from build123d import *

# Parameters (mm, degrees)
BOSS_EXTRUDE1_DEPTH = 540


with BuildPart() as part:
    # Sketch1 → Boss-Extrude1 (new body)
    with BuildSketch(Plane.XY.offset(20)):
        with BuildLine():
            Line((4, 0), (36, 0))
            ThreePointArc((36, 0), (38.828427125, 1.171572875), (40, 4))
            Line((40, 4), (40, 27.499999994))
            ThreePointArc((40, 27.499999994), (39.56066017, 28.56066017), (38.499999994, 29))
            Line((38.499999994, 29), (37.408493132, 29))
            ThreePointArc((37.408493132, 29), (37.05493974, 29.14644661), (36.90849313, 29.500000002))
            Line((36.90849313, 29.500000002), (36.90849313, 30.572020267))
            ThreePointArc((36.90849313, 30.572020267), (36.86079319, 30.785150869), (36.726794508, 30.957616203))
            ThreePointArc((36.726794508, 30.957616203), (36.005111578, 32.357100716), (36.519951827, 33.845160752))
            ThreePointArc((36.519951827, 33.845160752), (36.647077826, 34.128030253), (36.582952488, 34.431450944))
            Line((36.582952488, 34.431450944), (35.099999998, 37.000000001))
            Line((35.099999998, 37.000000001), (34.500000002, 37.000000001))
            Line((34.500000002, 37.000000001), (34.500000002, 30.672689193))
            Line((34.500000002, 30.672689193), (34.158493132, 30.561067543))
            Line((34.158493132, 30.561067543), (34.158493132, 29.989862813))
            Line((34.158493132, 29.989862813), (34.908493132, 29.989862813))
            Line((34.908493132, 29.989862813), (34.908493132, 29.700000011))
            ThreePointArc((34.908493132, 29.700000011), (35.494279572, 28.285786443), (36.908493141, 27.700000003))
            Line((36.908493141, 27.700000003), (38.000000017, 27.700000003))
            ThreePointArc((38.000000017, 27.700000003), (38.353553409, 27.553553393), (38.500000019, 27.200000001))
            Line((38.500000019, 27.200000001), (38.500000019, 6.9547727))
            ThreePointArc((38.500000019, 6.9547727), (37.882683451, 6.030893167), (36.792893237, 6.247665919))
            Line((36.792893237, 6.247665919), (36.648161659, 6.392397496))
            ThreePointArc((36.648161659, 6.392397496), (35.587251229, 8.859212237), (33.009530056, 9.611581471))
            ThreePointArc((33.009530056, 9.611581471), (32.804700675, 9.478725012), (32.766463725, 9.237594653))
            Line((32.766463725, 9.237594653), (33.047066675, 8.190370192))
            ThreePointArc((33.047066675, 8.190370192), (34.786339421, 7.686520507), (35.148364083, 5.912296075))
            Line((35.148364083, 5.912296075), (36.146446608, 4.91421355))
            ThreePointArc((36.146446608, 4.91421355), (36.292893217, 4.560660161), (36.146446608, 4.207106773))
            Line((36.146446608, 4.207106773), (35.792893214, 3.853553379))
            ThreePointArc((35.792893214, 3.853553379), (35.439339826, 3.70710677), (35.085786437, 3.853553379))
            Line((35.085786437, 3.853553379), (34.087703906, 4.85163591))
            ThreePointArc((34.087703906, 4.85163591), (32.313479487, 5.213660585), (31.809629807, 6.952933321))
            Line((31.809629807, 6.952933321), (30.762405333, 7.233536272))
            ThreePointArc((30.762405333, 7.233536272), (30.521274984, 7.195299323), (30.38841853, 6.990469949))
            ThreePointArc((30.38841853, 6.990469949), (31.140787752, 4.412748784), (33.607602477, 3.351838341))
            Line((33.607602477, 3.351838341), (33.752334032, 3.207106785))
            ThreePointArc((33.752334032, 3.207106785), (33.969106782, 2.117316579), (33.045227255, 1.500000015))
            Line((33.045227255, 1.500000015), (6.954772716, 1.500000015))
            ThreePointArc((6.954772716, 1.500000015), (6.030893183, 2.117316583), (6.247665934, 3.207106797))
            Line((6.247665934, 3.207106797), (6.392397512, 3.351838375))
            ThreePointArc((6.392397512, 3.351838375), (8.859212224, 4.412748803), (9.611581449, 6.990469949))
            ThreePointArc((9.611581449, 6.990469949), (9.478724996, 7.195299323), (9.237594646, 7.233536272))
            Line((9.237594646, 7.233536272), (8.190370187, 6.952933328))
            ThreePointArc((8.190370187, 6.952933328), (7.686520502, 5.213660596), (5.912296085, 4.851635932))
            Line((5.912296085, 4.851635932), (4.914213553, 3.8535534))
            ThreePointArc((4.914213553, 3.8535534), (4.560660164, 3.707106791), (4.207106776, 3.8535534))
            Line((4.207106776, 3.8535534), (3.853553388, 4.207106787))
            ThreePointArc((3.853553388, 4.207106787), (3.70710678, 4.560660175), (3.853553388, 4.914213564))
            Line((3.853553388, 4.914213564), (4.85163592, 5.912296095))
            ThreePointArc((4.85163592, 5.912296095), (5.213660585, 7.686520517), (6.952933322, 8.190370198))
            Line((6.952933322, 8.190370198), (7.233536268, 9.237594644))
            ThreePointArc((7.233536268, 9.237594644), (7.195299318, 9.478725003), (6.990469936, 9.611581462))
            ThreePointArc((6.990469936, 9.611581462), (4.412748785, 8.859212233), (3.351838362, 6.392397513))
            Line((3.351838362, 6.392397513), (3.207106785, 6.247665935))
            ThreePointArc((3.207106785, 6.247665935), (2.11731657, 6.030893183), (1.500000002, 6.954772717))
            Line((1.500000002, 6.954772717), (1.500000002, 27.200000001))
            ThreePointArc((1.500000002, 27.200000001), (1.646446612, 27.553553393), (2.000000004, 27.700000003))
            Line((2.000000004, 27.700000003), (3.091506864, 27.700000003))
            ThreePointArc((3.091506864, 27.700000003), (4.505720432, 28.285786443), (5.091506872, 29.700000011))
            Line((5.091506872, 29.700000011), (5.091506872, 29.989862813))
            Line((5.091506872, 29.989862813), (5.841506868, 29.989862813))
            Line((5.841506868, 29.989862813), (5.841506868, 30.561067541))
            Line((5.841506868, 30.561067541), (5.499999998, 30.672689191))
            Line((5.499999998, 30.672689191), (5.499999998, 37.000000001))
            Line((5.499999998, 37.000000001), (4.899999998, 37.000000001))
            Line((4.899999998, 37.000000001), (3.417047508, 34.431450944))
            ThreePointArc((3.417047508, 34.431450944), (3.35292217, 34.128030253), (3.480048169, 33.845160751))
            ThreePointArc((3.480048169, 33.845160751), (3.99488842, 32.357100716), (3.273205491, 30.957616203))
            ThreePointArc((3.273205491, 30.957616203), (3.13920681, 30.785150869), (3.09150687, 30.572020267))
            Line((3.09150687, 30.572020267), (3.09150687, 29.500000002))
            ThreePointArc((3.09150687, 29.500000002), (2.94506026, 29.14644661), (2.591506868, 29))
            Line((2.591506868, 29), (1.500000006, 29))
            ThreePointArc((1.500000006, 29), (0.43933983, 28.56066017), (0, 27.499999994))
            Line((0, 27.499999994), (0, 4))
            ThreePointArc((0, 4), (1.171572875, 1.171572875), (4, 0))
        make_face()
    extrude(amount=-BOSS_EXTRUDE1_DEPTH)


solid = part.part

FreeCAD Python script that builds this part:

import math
import FreeCAD as App
import Part
import Sketcher
Q = App.Units.Quantity

doc = App.newDocument("Part")
body = doc.addObject("PartDesign::Body", "Body")

# Sketch on XY plane
sketch1 = body.newObject("Sketcher::SketchObject", "Sketch")
sketch1.AttachmentSupport = (doc.getObject("XY_Plane"), [""])
sketch1.MapMode = "FlatFace"
sketch1.AttachmentOffset = App.Placement(App.Vector(0, 0, 20), App.Rotation())
sketch1.addGeometry(Part.LineSegment(App.Vector(4, 0, 0), App.Vector(36, 0, 0)), False)
sketch1.addGeometry(Part.ArcOfCircle(Part.Circle(App.Vector(36, 4, 0), App.Vector(0, 0, 1), 4), math.radians(-90), math.radians(0)), False)
sketch1.addGeometry(Part.LineSegment(App.Vector(40, 4, 0), App.Vector(40, 27.5, 0)), False)
sketch1.addGeometry(Part.ArcOfCircle(Part.Circle(App.Vector(38.5, 27.5, 0), App.Vector(0, 0, 1), 1.5), math.radians(0), math.radians(90)), False)
sketch1.addGeometry(Part.LineSegment(App.Vector(38.5, 29, 0), App.Vector(37.41, 29, 0)), False)
sketch1.addGeometry(Part.ArcOfCircle(Part.Circle(App.Vector(37.41, 29.5, 0), App.Vector(0, 0, 1), 0.5), math.radians(180), math.radians(270)), False)
sketch1.addGeometry(Part.LineSegment(App.Vector(36.91, 29.5, 0), App.Vector(36.91, 30.57, 0)), False)
sketch1.addGeometry(Part.ArcOfCircle(Part.Circle(App.Vector(36.41, 30.57, 0), App.Vector(0, 0, 1), 0.5), math.radians(0), math.radians(50)), False)
sketch1.addGeometry(Part.ArcOfCircle(Part.Circle(App.Vector(38, 32.5, 0), App.Vector(0, 0, 1), 2), math.radians(138), math.radians(230)), False)
sketch1.addGeometry(Part.ArcOfCircle(Part.Circle(App.Vector(36.15, 34.18, 0), App.Vector(0, 0, 1), 0.5), math.radians(-42), math.radians(30)), False)
sketch1.addGeometry(Part.LineSegment(App.Vector(36.58, 34.43, 0), App.Vector(35.1, 37, 0)), False)
sketch1.addGeometry(Part.LineSegment(App.Vector(35.1, 37, 0), App.Vector(34.5, 37, 0)), False)
sketch1.addGeometry(Part.LineSegment(App.Vector(34.5, 37, 0), App.Vector(34.5, 30.67, 0)), False)
sketch1.addGeometry(Part.LineSegment(App.Vector(34.5, 30.67, 0), App.Vector(34.16, 30.56, 0)), False)
sketch1.addGeometry(Part.LineSegment(App.Vector(34.16, 30.56, 0), App.Vector(34.16, 29.99, 0)), False)
sketch1.addGeometry(Part.LineSegment(App.Vector(34.16, 29.99, 0), App.Vector(34.91, 29.99, 0)), False)
sketch1.addGeometry(Part.LineSegment(App.Vector(34.91, 29.99, 0), App.Vector(34.91, 29.7, 0)), False)
sketch1.addGeometry(Part.ArcOfCircle(Part.Circle(App.Vector(36.91, 29.7, 0), App.Vector(0, 0, 1), 2), math.radians(180), math.radians(270)), False)
sketch1.addGeometry(Part.LineSegment(App.Vector(36.91, 27.7, 0), App.Vector(38, 27.7, 0)), False)
sketch1.addGeometry(Part.ArcOfCircle(Part.Circle(App.Vector(38, 27.2, 0), App.Vector(0, 0, 1), 0.5), math.radians(0), math.radians(90)), False)
sketch1.addGeometry(Part.LineSegment(App.Vector(38.5, 27.2, 0), App.Vector(38.5, 6.95, 0)), False)
sketch1.addGeometry(Part.ArcOfCircle(Part.Circle(App.Vector(37.5, 6.95, 0), App.Vector(0, 0, 1), 1), math.radians(-135), math.radians(0)), False)
sketch1.addGeometry(Part.LineSegment(App.Vector(36.79, 6.25, 0), App.Vector(36.65, 6.39, 0)), False)
sketch1.addGeometry(Part.ArcOfCircle(Part.Circle(App.Vector(33.5, 6.5, 0), App.Vector(0, 0, 1), 3.15), math.radians(-2), math.radians(99)), False)
sketch1.addGeometry(Part.ArcOfCircle(Part.Circle(App.Vector(33.06, 9.32, 0), App.Vector(0, 0, 1), 0.3), math.radians(99), math.radians(195)), False)
sketch1.addGeometry(Part.LineSegment(App.Vector(32.77, 9.24, 0), App.Vector(33.05, 8.19, 0)), False)
sketch1.addGeometry(Part.ArcOfCircle(Part.Circle(App.Vector(33.5, 6.5, 0), App.Vector(0, 0, 1), 1.75), math.radians(-20), math.radians(105)), False)
sketch1.addGeometry(Part.LineSegment(App.Vector(35.15, 5.91, 0), App.Vector(36.15, 4.91, 0)), False)
sketch1.addGeometry(Part.ArcOfCircle(Part.Circle(App.Vector(35.79, 4.56, 0), App.Vector(0, 0, 1), 0.5), math.radians(-45), math.radians(45)), False)
sketch1.addGeometry(Part.LineSegment(App.Vector(36.15, 4.21, 0), App.Vector(35.79, 3.85, 0)), False)
sketch1.addGeometry(Part.ArcOfCircle(Part.Circle(App.Vector(35.44, 4.21, 0), App.Vector(0, 0, 1), 0.5), math.radians(-135), math.radians(-45)), False)
sketch1.addGeometry(Part.LineSegment(App.Vector(35.09, 3.85, 0), App.Vector(34.09, 4.85, 0)), False)
sketch1.addGeometry(Part.ArcOfCircle(Part.Circle(App.Vector(33.5, 6.5, 0), App.Vector(0, 0, 1), 1.75), math.radians(165), math.radians(290)), False)
sketch1.addGeometry(Part.LineSegment(App.Vector(31.81, 6.95, 0), App.Vector(30.76, 7.23, 0)), False)
sketch1.addGeometry(Part.ArcOfCircle(Part.Circle(App.Vector(30.68, 6.94, 0), App.Vector(0, 0, 1), 0.3), math.radians(75), math.radians(171)), False)
sketch1.addGeometry(Part.ArcOfCircle(Part.Circle(App.Vector(33.5, 6.5, 0), App.Vector(0, 0, 1), 3.15), math.radians(171), math.radians(272)), False)
sketch1.addGeometry(Part.LineSegment(App.Vector(33.61, 3.35, 0), App.Vector(33.75, 3.21, 0)), False)
sketch1.addGeometry(Part.ArcOfCircle(Part.Circle(App.Vector(33.05, 2.5, 0), App.Vector(0, 0, 1), 1), math.radians(-90), math.radians(45)), False)
sketch1.addGeometry(Part.LineSegment(App.Vector(33.05, 1.5, 0), App.Vector(6.95, 1.5, 0)), False)
sketch1.addGeometry(Part.ArcOfCircle(Part.Circle(App.Vector(6.95, 2.5, 0), App.Vector(0, 0, 1), 1), math.radians(135), math.radians(270)), False)
sketch1.addGeometry(Part.LineSegment(App.Vector(6.25, 3.21, 0), App.Vector(6.39, 3.35, 0)), False)
sketch1.addGeometry(Part.ArcOfCircle(Part.Circle(App.Vector(6.5, 6.5, 0), App.Vector(0, 0, 1), 3.15), math.radians(-92), math.radians(9)), False)
sketch1.addGeometry(Part.ArcOfCircle(Part.Circle(App.Vector(9.32, 6.94, 0), App.Vector(0, 0, 1), 0.3), math.radians(9), math.radians(105)), False)
sketch1.addGeometry(Part.LineSegment(App.Vector(9.24, 7.23, 0), App.Vector(8.19, 6.95, 0)), False)
sketch1.addGeometry(Part.ArcOfCircle(Part.Circle(App.Vector(6.5, 6.5, 0), App.Vector(0, 0, 1), 1.75), math.radians(-110), math.radians(15)), False)
sketch1.addGeometry(Part.LineSegment(App.Vector(5.91, 4.85, 0), App.Vector(4.91, 3.85, 0)), False)
sketch1.addGeometry(Part.ArcOfCircle(Part.Circle(App.Vector(4.56, 4.21, 0), App.Vector(0, 0, 1), 0.5), math.radians(-135), math.radians(-45)), False)
sketch1.addGeometry(Part.LineSegment(App.Vector(4.21, 3.85, 0), App.Vector(3.85, 4.21, 0)), False)
sketch1.addGeometry(Part.ArcOfCircle(Part.Circle(App.Vector(4.21, 4.56, 0), App.Vector(0, 0, 1), 0.5), math.radians(135), math.radians(225)), False)
sketch1.addGeometry(Part.LineSegment(App.Vector(3.85, 4.91, 0), App.Vector(4.85, 5.91, 0)), False)
sketch1.addGeometry(Part.ArcOfCircle(Part.Circle(App.Vector(6.5, 6.5, 0), App.Vector(0, 0, 1), 1.75), math.radians(75), math.radians(200)), False)
sketch1.addGeometry(Part.LineSegment(App.Vector(6.95, 8.19, 0), App.Vector(7.23, 9.24, 0)), False)
sketch1.addGeometry(Part.ArcOfCircle(Part.Circle(App.Vector(6.94, 9.32, 0), App.Vector(0, 0, 1), 0.3), math.radians(-15), math.radians(81)), False)
sketch1.addGeometry(Part.ArcOfCircle(Part.Circle(App.Vector(6.5, 6.5, 0), App.Vector(0, 0, 1), 3.15), math.radians(81), math.radians(182)), False)
sketch1.addGeometry(Part.LineSegment(App.Vector(3.35, 6.39, 0), App.Vector(3.21, 6.25, 0)), False)
sketch1.addGeometry(Part.ArcOfCircle(Part.Circle(App.Vector(2.5, 6.95, 0), App.Vector(0, 0, 1), 1), math.radians(180), math.radians(315)), False)
sketch1.addGeometry(Part.LineSegment(App.Vector(1.5, 6.95, 0), App.Vector(1.5, 27.2, 0)), False)
sketch1.addGeometry(Part.ArcOfCircle(Part.Circle(App.Vector(2, 27.2, 0), App.Vector(0, 0, 1), 0.5), math.radians(90), math.radians(180)), False)
sketch1.addGeometry(Part.LineSegment(App.Vector(2, 27.7, 0), App.Vector(3.09, 27.7, 0)), False)
sketch1.addGeometry(Part.ArcOfCircle(Part.Circle(App.Vector(3.09, 29.7, 0), App.Vector(0, 0, 1), 2), math.radians(-90), math.radians(0)), False)
sketch1.addGeometry(Part.LineSegment(App.Vector(5.09, 29.7, 0), App.Vector(5.09, 29.99, 0)), False)
sketch1.addGeometry(Part.LineSegment(App.Vector(5.09, 29.99, 0), App.Vector(5.84, 29.99, 0)), False)
sketch1.addGeometry(Part.LineSegment(App.Vector(5.84, 29.99, 0), App.Vector(5.84, 30.56, 0)), False)
sketch1.addGeometry(Part.LineSegment(App.Vector(5.84, 30.56, 0), App.Vector(5.5, 30.67, 0)), False)
sketch1.addGeometry(Part.LineSegment(App.Vector(5.5, 30.67, 0), App.Vector(5.5, 37, 0)), False)
sketch1.addGeometry(Part.LineSegment(App.Vector(5.5, 37, 0), App.Vector(4.9, 37, 0)), False)
sketch1.addGeometry(Part.LineSegment(App.Vector(4.9, 37, 0), App.Vector(3.42, 34.43, 0)), False)
sketch1.addGeometry(Part.ArcOfCircle(Part.Circle(App.Vector(3.85, 34.18, 0), App.Vector(0, 0, 1), 0.5), math.radians(150), math.radians(222)), False)
sketch1.addGeometry(Part.ArcOfCircle(Part.Circle(App.Vector(2, 32.5, 0), App.Vector(0, 0, 1), 2), math.radians(-50), math.radians(42)), False)
sketch1.addGeometry(Part.ArcOfCircle(Part.Circle(App.Vector(3.59, 30.57, 0), App.Vector(0, 0, 1), 0.5), math.radians(130), math.radians(180)), False)
sketch1.addGeometry(Part.LineSegment(App.Vector(3.09, 30.57, 0), App.Vector(3.09, 29.5, 0)), False)
sketch1.addGeometry(Part.ArcOfCircle(Part.Circle(App.Vector(2.59, 29.5, 0), App.Vector(0, 0, 1), 0.5), math.radians(-90), math.radians(0)), False)
sketch1.addGeometry(Part.LineSegment(App.Vector(2.59, 29, 0), App.Vector(1.5, 29, 0)), False)
sketch1.addGeometry(Part.ArcOfCircle(Part.Circle(App.Vector(1.5, 27.5, 0), App.Vector(0, 0, 1), 1.5), math.radians(90), math.radians(180)), False)
sketch1.addGeometry(Part.LineSegment(App.Vector(0, 27.5, 0), App.Vector(0, 4, 0)), False)
sketch1.addGeometry(Part.ArcOfCircle(Part.Circle(App.Vector(4, 4, 0), App.Vector(0, 0, 1), 4), math.radians(180), math.radians(270)), False)
sketch1.addConstraint(Sketcher.Constraint("Tangent", 0, 2, 1, 1))
sketch1.addConstraint(Sketcher.Constraint("Tangent", 1, 2, 2, 1))
sketch1.addConstraint(Sketcher.Constraint("Tangent", 2, 2, 3, 1))
sketch1.addConstraint(Sketcher.Constraint("Tangent", 3, 2, 4, 1))
sketch1.addConstraint(Sketcher.Constraint("Tangent", 4, 2, 5, 2))
sketch1.addConstraint(Sketcher.Constraint("Tangent", 5, 1, 6, 1))
sketch1.addConstraint(Sketcher.Constraint("Tangent", 6, 2, 7, 1))
sketch1.addConstraint(Sketcher.Constraint("Tangent", 7, 2, 8, 2))
sketch1.addConstraint(Sketcher.Constraint("Tangent", 8, 1, 9, 1))
sketch1.addConstraint(Sketcher.Constraint("Tangent", 9, 2, 10, 1))
sketch1.addConstraint(Sketcher.Constraint("Coincident", 10, 2, 11, 1))
sketch1.addConstraint(Sketcher.Constraint("Coincident", 11, 2, 12, 1))
sketch1.addConstraint(Sketcher.Constraint("Coincident", 12, 2, 13, 1))
sketch1.addConstraint(Sketcher.Constraint("Coincident", 13, 2, 14, 1))
sketch1.addConstraint(Sketcher.Constraint("Coincident", 14, 2, 15, 1))
sketch1.addConstraint(Sketcher.Constraint("Coincident", 15, 2, 16, 1))
sketch1.addConstraint(Sketcher.Constraint("Tangent", 16, 2, 17, 1))
sketch1.addConstraint(Sketcher.Constraint("Tangent", 17, 2, 18, 1))
sketch1.addConstraint(Sketcher.Constraint("Tangent", 18, 2, 19, 2))
sketch1.addConstraint(Sketcher.Constraint("Tangent", 19, 1, 20, 1))
sketch1.addConstraint(Sketcher.Constraint("Tangent", 20, 2, 21, 2))
sketch1.addConstraint(Sketcher.Constraint("Tangent", 21, 1, 22, 1))
sketch1.addConstraint(Sketcher.Constraint("Coincident", 22, 2, 23, 1))
sketch1.addConstraint(Sketcher.Constraint("Tangent", 23, 2, 24, 1))
sketch1.addConstraint(Sketcher.Constraint("Tangent", 24, 2, 25, 1))
sketch1.addConstraint(Sketcher.Constraint("Coincident", 25, 2, 26, 2))
sketch1.addConstraint(Sketcher.Constraint("Coincident", 26, 1, 27, 1))
sketch1.addConstraint(Sketcher.Constraint("Tangent", 27, 2, 28, 2))
sketch1.addConstraint(Sketcher.Constraint("Tangent", 28, 1, 29, 1))
sketch1.addConstraint(Sketcher.Constraint("Tangent", 29, 2, 30, 2))
sketch1.addConstraint(Sketcher.Constraint("Tangent", 30, 1, 31, 1))
sketch1.addConstraint(Sketcher.Constraint("Coincident", 31, 2, 32, 2))
sketch1.addConstraint(Sketcher.Constraint("Coincident", 32, 1, 33, 1))
sketch1.addConstraint(Sketcher.Constraint("Tangent", 33, 2, 34, 1))
sketch1.addConstraint(Sketcher.Constraint("Tangent", 34, 2, 35, 1))
sketch1.addConstraint(Sketcher.Constraint("Coincident", 35, 2, 36, 1))
sketch1.addConstraint(Sketcher.Constraint("Tangent", 36, 2, 37, 2))
sketch1.addConstraint(Sketcher.Constraint("Tangent", 37, 1, 38, 1))
sketch1.addConstraint(Sketcher.Constraint("Tangent", 38, 2, 39, 2))
sketch1.addConstraint(Sketcher.Constraint("Tangent", 39, 1, 40, 1))
sketch1.addConstraint(Sketcher.Constraint("Coincident", 40, 2, 41, 1))
sketch1.addConstraint(Sketcher.Constraint("Tangent", 41, 2, 42, 1))
sketch1.addConstraint(Sketcher.Constraint("Tangent", 42, 2, 43, 1))
sketch1.addConstraint(Sketcher.Constraint("Coincident", 43, 2, 44, 2))
sketch1.addConstraint(Sketcher.Constraint("Coincident", 44, 1, 45, 1))
sketch1.addConstraint(Sketcher.Constraint("Tangent", 45, 2, 46, 2))
sketch1.addConstraint(Sketcher.Constraint("Tangent", 46, 1, 47, 1))
sketch1.addConstraint(Sketcher.Constraint("Tangent", 47, 2, 48, 2))
sketch1.addConstraint(Sketcher.Constraint("Tangent", 48, 1, 49, 1))
sketch1.addConstraint(Sketcher.Constraint("Coincident", 49, 2, 50, 2))
sketch1.addConstraint(Sketcher.Constraint("Coincident", 50, 1, 51, 1))
sketch1.addConstraint(Sketcher.Constraint("Tangent", 51, 2, 52, 1))
sketch1.addConstraint(Sketcher.Constraint("Tangent", 52, 2, 53, 1))
sketch1.addConstraint(Sketcher.Constraint("Coincident", 53, 2, 54, 1))
sketch1.addConstraint(Sketcher.Constraint("Tangent", 54, 2, 55, 2))
sketch1.addConstraint(Sketcher.Constraint("Tangent", 55, 1, 56, 1))
sketch1.addConstraint(Sketcher.Constraint("Tangent", 56, 2, 57, 2))
sketch1.addConstraint(Sketcher.Constraint("Tangent", 57, 1, 58, 1))
sketch1.addConstraint(Sketcher.Constraint("Tangent", 58, 2, 59, 1))
sketch1.addConstraint(Sketcher.Constraint("Tangent", 59, 2, 60, 1))
sketch1.addConstraint(Sketcher.Constraint("Coincident", 60, 2, 61, 1))
sketch1.addConstraint(Sketcher.Constraint("Coincident", 61, 2, 62, 1))
sketch1.addConstraint(Sketcher.Constraint("Coincident", 62, 2, 63, 1))
sketch1.addConstraint(Sketcher.Constraint("Coincident", 63, 2, 64, 1))
sketch1.addConstraint(Sketcher.Constraint("Coincident", 64, 2, 65, 1))
sketch1.addConstraint(Sketcher.Constraint("Coincident", 65, 2, 66, 1))
sketch1.addConstraint(Sketcher.Constraint("Tangent", 66, 2, 67, 1))
sketch1.addConstraint(Sketcher.Constraint("Tangent", 67, 2, 68, 2))
sketch1.addConstraint(Sketcher.Constraint("Tangent", 68, 1, 69, 1))
sketch1.addConstraint(Sketcher.Constraint("Tangent", 69, 2, 70, 1))
sketch1.addConstraint(Sketcher.Constraint("Tangent", 70, 2, 71, 2))
sketch1.addConstraint(Sketcher.Constraint("Tangent", 71, 1, 72, 1))
sketch1.addConstraint(Sketcher.Constraint("Tangent", 72, 2, 73, 1))
sketch1.addConstraint(Sketcher.Constraint("Tangent", 73, 2, 74, 1))
sketch1.addConstraint(Sketcher.Constraint("Tangent", 74, 2, 75, 1))
sketch1.addConstraint(Sketcher.Constraint("Tangent", 75, 2, 0, 1))
sketch1.addConstraint(Sketcher.Constraint("Horizontal", 0))
sketch1.addConstraint(Sketcher.Constraint("Vertical", 2))
sketch1.addConstraint(Sketcher.Constraint("Horizontal", 4))
sketch1.addConstraint(Sketcher.Constraint("Vertical", 6))
sketch1.addConstraint(Sketcher.Constraint("Horizontal", 11))
sketch1.addConstraint(Sketcher.Constraint("Vertical", 12))
sketch1.addConstraint(Sketcher.Constraint("Vertical", 14))
sketch1.addConstraint(Sketcher.Constraint("Horizontal", 15))
sketch1.addConstraint(Sketcher.Constraint("Vertical", 16))
sketch1.addConstraint(Sketcher.Constraint("Horizontal", 18))
sketch1.addConstraint(Sketcher.Constraint("Vertical", 20))
sketch1.addConstraint(Sketcher.Constraint("Horizontal", 38))
sketch1.addConstraint(Sketcher.Constraint("Vertical", 56))
sketch1.addConstraint(Sketcher.Constraint("Horizontal", 58))
sketch1.addConstraint(Sketcher.Constraint("Vertical", 60))
sketch1.addConstraint(Sketcher.Constraint("Horizontal", 61))
sketch1.addConstraint(Sketcher.Constraint("Vertical", 62))
sketch1.addConstraint(Sketcher.Constraint("Vertical", 64))
sketch1.addConstraint(Sketcher.Constraint("Horizontal", 65))
sketch1.addConstraint(Sketcher.Constraint("Vertical", 70))
sketch1.addConstraint(Sketcher.Constraint("Horizontal", 72))
sketch1.addConstraint(Sketcher.Constraint("Vertical", 74))
sketch1.addConstraint(Sketcher.Constraint("Coincident", 26, 3, 23, 3))
sketch1.addConstraint(Sketcher.Constraint("Coincident", 32, 3, 23, 3))
sketch1.addConstraint(Sketcher.Constraint("Coincident", 35, 3, 23, 3))
sketch1.addConstraint(Sketcher.Constraint("Coincident", 44, 3, 41, 3))
sketch1.addConstraint(Sketcher.Constraint("Coincident", 50, 3, 41, 3))
sketch1.addConstraint(Sketcher.Constraint("Coincident", 53, 3, 41, 3))
sketch1.addConstraint(Sketcher.Constraint("Equal", 5, 7))
sketch1.addConstraint(Sketcher.Constraint("Equal", 7, 9))
sketch1.addConstraint(Sketcher.Constraint("Equal", 8, 17))
sketch1.addConstraint(Sketcher.Constraint("Equal", 9, 19))
sketch1.addConstraint(Sketcher.Constraint("Equal", 19, 28))
sketch1.addConstraint(Sketcher.Constraint("Equal", 28, 30))
sketch1.addConstraint(Sketcher.Constraint("Equal", 26, 32))
sketch1.addConstraint(Sketcher.Constraint("Equal", 24, 34))
sketch1.addConstraint(Sketcher.Constraint("Equal", 23, 35))
sketch1.addConstraint(Sketcher.Constraint("Equal", 21, 37))
sketch1.addConstraint(Sketcher.Constraint("Equal", 37, 39))
sketch1.addConstraint(Sketcher.Constraint("Equal", 35, 41))
sketch1.addConstraint(Sketcher.Constraint("Equal", 34, 42))
sketch1.addConstraint(Sketcher.Constraint("Equal", 32, 44))
sketch1.addConstraint(Sketcher.Constraint("Equal", 30, 46))
sketch1.addConstraint(Sketcher.Constraint("Equal", 46, 48))
sketch1.addConstraint(Sketcher.Constraint("Equal", 44, 50))
sketch1.addConstraint(Sketcher.Constraint("Equal", 42, 52))
sketch1.addConstraint(Sketcher.Constraint("Equal", 41, 53))
sketch1.addConstraint(Sketcher.Constraint("Equal", 39, 55))
sketch1.addConstraint(Sketcher.Constraint("Equal", 48, 57))
sketch1.addConstraint(Sketcher.Constraint("Equal", 17, 59))
sketch1.addConstraint(Sketcher.Constraint("Equal", 57, 67))
sketch1.addConstraint(Sketcher.Constraint("Equal", 59, 68))
sketch1.addConstraint(Sketcher.Constraint("Equal", 67, 69))
sketch1.addConstraint(Sketcher.Constraint("Equal", 69, 71))
sketch1.addConstraint(Sketcher.Constraint("Equal", 3, 73))
sketch1.addConstraint(Sketcher.Constraint("Equal", 1, 75))
sketch1.addConstraint(Sketcher.Constraint("PointOnObject", 0, 2, -1))
sketch1.addConstraint(Sketcher.Constraint("PointOnObject", 73, 2, -2))
sketch1.addConstraint(Sketcher.Constraint("Parallel", 22, 27))
sketch1.addConstraint(Sketcher.Constraint("Perpendicular", 27, 29))
sketch1.addConstraint(Sketcher.Constraint("Perpendicular", 29, 31))
sketch1.addConstraint(Sketcher.Constraint("Parallel", 31, 36))
sketch1.addConstraint(Sketcher.Constraint("Perpendicular", 36, 40))
sketch1.addConstraint(Sketcher.Constraint("Perpendicular", 25, 43))
sketch1.addConstraint(Sketcher.Constraint("Parallel", 40, 45))
sketch1.addConstraint(Sketcher.Constraint("Perpendicular", 45, 47))
sketch1.addConstraint(Sketcher.Constraint("Perpendicular", 47, 49))
sketch1.addConstraint(Sketcher.Constraint("Perpendicular", 33, 51))
sketch1.addConstraint(Sketcher.Constraint("Parallel", 49, 54))
sketch1.addConstraint(Sketcher.Constraint("Horizontal", 35, 3, 41, 3))
sketch1.addConstraint(Sketcher.Constraint("Horizontal", 34, 3, 42, 3))
sketch1.addConstraint(Sketcher.Constraint("Horizontal", 30, 3, 46, 3))
sketch1.addConstraint(Sketcher.Constraint("Horizontal", 28, 3, 48, 3))
sketch1.addConstraint(Sketcher.Constraint("Horizontal", 24, 3, 52, 3))
sketch1.addConstraint(Sketcher.Constraint("Horizontal", 21, 3, 55, 3))
sketch1.addConstraint(Sketcher.Constraint("Horizontal", 19, 3, 57, 3))
sketch1.addConstraint(Sketcher.Constraint("Horizontal", 9, 3, 67, 3))
sketch1.addConstraint(Sketcher.Constraint("Horizontal", 8, 3, 68, 3))
sketch1.addConstraint(Sketcher.Constraint("Horizontal", 7, 3, 69, 3))
sketch1.addConstraint(Sketcher.Constraint("Horizontal", 5, 3, 71, 3))
sketch1.addConstraint(Sketcher.Constraint("Horizontal", 46, 3, 28, 1))
sketch1.addConstraint(Sketcher.Constraint("Horizontal", 29, 2, 30, 1))
sketch1.addConstraint(Sketcher.Constraint("Horizontal", 35, 2, 40, 2))
sketch1.addConstraint(Sketcher.Constraint("Horizontal", 33, 2, 42, 2))
sketch1.addConstraint(Sketcher.Constraint("Horizontal", 31, 2, 44, 1))
sketch1.addConstraint(Sketcher.Constraint("Horizontal", 22, 2, 53, 2))
sketch1.addConstraint(Sketcher.Constraint("Horizontal", 15, 2, 60, 2))
sketch1.addConstraint(Sketcher.Constraint("Horizontal", 13, 2, 62, 2))
sketch1.addConstraint(Sketcher.Constraint("Horizontal", 12, 2, 63, 2))
sketch1.addConstraint(Sketcher.Constraint("Horizontal", 11, 2, 64, 2))
sketch1.addConstraint(Sketcher.Constraint("Horizontal", 9, 2, 66, 2))
sketch1.addConstraint(Sketcher.Constraint("Vertical", 8, 3, 19, 3))
sketch1.addConstraint(Sketcher.Constraint("Vertical", 57, 3, 68, 3))
sketch1.addConstraint(Sketcher.Constraint("Vertical", 17, 3, 5, 1))
sketch1.addConstraint(Sketcher.Constraint("Vertical", 3, 2, 19, 1))
sketch1.addConstraint(Sketcher.Constraint("Vertical", 73, 3, 55, 1))
sketch1.addConstraint(Sketcher.Constraint("Vertical", 58, 2, 69, 2))
sketch1.addConstraint(Sketcher.Constraint("Equal", 15, 61))
sketch1.addConstraint(Sketcher.Constraint("Equal", 11, 65))
sketch1.addConstraint(Sketcher.Constraint("Equal", 27, 31))
sketch1.addConstraint(Sketcher.Constraint("Equal", 25, 33))
sketch1.addConstraint(Sketcher.Constraint("Equal", 22, 36))
sketch1.addConstraint(Sketcher.Constraint("Radius", 1, 4.0))
sketch1.addConstraint(Sketcher.Constraint("Radius", 8, 2.0))
sketch1.addConstraint(Sketcher.Constraint("Radius", 21, 1.0))
sketch1.addConstraint(Sketcher.Constraint("Radius", 3, 1.5))
sketch1.addConstraint(Sketcher.Constraint("Radius", 5, 0.5))
sketch1.addConstraint(Sketcher.Constraint("Radius", 24, 0.3))
sketch1.addConstraint(Sketcher.Constraint("DistanceX", 0, 1, 0, 2, 32.0))
sketch1.addConstraint(Sketcher.Constraint("Angle", 10, Q("120 deg")))
sketch1.addConstraint(Sketcher.Constraint("Angle", 25, Q("-75 deg")))
sketch1.addConstraint(Sketcher.Constraint("Radius", 23, 3.15))
sketch1.addConstraint(Sketcher.Constraint("Radius", 26, 1.75))
sketch1.addConstraint(Sketcher.Constraint("DistanceX", 11, 2, 11, 1, 0.6))
sketch1.addConstraint(Sketcher.Constraint("DistanceY", 2, 1, 2, 2, 23.5))
sketch1.addConstraint(Sketcher.Constraint("DistanceY", -1, 1, 10, 2, 37.0))
sketch1.addConstraint(Sketcher.Constraint("Angle", 13, Q("-161.9 deg")))
sketch1.addConstraint(Sketcher.Constraint("DistanceX", 15, 1, 15, 2, 0.75))
sketch1.addConstraint(Sketcher.Constraint("DistanceY", -1, 1, 8, 3, 32.5))
sketch1.addConstraint(Sketcher.Constraint("DistanceY", -1, 1, 17, 3, 29.7))
sketch1.addConstraint(Sketcher.Constraint("DistanceX", -1, 1, 23, 3, 33.5))
sketch1.addConstraint(Sketcher.Constraint("DistanceY", -1, 1, 23, 3, 6.5))
sketch1.addConstraint(Sketcher.Constraint("DistanceY", -1, 1, 37, 3, 2.5))
sketch1.addConstraint(Sketcher.Constraint("DistanceX", -1, 1, 10, 2, 35.1))
sketch1.addConstraint(Sketcher.Constraint("Distance", 27, 1.411502))
sketch1.addConstraint(Sketcher.Constraint("DistanceY", 6, 1, 6, 2, 1.07202))
sketch1.addConstraint(Sketcher.Constraint("DistanceY", 12, 2, 12, 1, 6.327311))
sketch1.addConstraint(Sketcher.Constraint("Distance", 22, 0.204681))
sketch1.addConstraint(Sketcher.Constraint("DistanceY", 14, 2, 14, 1, 0.571205))
sketch1.addConstraint(Sketcher.Constraint("DistanceX", -1, 1, 24, 3, 33.056241))
pad1 = body.newObject("PartDesign::Pad", "Pad")
pad1.Profile = sketch1
pad1.Length = 540
pad1.Reversed = True

doc.recompute()
